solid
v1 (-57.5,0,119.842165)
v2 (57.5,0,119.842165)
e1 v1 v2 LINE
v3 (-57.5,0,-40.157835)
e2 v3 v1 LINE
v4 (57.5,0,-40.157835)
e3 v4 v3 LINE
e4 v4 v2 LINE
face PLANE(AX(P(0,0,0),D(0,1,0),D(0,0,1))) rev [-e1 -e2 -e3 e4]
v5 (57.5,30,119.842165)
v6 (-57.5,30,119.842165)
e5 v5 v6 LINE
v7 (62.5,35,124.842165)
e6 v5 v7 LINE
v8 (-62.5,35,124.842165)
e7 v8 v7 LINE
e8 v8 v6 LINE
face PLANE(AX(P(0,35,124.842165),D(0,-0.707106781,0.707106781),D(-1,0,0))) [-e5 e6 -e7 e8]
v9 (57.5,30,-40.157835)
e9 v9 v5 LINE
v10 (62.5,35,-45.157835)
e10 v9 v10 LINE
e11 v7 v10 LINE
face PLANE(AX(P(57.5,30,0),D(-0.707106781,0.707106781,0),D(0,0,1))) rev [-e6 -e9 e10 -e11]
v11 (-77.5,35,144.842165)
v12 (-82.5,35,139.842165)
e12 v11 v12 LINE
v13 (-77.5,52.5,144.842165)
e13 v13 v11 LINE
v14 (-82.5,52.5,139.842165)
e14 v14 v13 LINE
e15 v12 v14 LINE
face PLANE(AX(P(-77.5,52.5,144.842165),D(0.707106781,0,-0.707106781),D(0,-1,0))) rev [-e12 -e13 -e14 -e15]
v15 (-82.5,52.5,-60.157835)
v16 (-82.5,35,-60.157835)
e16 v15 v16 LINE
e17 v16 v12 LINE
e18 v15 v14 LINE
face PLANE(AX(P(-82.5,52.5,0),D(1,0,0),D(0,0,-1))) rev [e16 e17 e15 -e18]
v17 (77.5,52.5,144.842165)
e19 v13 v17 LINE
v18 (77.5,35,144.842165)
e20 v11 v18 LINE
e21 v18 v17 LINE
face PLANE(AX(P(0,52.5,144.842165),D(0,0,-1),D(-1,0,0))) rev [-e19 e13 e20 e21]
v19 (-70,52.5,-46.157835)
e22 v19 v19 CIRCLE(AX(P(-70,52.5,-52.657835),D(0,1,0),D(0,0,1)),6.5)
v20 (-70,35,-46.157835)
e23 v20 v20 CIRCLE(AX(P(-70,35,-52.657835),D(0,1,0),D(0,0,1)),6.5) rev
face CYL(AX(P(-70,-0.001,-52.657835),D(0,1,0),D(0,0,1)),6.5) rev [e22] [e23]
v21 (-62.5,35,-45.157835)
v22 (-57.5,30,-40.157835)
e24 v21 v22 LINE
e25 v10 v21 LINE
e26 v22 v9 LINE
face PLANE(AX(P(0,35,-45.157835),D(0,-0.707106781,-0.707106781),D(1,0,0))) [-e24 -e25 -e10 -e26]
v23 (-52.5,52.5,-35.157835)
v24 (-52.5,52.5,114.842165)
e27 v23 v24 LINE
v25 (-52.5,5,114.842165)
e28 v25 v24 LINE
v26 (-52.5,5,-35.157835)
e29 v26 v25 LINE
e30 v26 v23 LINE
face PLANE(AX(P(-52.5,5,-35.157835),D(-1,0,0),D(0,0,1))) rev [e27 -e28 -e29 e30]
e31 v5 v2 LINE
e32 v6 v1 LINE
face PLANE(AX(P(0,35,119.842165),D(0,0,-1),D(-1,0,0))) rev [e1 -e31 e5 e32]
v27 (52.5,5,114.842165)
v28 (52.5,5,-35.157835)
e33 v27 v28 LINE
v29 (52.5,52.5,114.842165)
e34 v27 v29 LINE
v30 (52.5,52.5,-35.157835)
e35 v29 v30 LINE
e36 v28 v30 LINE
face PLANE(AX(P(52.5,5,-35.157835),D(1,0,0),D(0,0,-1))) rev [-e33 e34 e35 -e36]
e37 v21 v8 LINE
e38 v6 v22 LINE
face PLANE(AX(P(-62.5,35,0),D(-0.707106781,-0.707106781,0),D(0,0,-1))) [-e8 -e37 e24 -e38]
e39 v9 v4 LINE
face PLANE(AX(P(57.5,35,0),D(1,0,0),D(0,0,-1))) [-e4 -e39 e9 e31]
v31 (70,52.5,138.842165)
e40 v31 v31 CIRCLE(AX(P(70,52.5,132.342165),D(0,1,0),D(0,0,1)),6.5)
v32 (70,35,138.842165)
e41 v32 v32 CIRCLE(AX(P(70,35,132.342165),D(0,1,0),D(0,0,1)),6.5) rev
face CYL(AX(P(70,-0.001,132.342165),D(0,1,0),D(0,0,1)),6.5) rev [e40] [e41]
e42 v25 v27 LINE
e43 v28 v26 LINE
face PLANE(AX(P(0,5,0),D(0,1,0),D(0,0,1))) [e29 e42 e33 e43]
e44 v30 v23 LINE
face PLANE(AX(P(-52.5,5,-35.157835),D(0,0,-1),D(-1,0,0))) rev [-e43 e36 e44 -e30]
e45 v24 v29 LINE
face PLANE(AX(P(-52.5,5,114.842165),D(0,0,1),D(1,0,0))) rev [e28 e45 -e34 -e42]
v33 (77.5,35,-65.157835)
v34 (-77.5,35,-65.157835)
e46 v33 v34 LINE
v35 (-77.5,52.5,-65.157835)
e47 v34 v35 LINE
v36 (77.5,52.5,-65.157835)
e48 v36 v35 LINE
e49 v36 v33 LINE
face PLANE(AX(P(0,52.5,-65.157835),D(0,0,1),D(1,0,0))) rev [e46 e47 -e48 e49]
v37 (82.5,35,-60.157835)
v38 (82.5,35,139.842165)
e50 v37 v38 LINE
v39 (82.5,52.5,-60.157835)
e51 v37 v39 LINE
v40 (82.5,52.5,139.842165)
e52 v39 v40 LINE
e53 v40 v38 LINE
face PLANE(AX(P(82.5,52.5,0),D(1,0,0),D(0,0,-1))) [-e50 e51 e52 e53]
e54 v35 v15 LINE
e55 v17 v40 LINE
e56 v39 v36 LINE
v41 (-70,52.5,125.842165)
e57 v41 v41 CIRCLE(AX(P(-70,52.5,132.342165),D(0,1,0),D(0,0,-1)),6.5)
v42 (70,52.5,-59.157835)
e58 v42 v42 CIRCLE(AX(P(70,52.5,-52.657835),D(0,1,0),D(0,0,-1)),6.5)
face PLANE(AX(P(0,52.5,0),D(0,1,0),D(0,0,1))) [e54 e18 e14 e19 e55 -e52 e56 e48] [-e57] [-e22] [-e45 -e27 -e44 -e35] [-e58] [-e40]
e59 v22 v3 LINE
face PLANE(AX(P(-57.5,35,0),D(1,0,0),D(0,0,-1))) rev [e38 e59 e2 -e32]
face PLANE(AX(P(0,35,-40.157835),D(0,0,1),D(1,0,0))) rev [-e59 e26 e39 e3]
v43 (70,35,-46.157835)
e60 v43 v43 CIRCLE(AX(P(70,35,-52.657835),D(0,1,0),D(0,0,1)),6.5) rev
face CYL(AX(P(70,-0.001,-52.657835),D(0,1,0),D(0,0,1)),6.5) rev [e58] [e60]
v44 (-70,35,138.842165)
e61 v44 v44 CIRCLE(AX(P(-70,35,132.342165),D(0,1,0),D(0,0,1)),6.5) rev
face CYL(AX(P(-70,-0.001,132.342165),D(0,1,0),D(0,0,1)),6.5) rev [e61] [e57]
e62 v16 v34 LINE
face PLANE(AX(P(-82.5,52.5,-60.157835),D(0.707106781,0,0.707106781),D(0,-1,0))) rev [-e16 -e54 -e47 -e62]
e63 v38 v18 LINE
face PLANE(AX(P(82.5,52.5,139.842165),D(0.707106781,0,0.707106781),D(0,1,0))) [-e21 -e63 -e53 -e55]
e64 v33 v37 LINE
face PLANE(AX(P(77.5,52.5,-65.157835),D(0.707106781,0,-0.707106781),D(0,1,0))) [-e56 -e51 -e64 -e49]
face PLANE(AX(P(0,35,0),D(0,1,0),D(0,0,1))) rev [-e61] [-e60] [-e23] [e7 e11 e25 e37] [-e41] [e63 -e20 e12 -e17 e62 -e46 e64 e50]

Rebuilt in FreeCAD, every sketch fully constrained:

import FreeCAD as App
import Part
import Sketcher

V = App.Vector
Q = App.Units.Quantity


def edges_at(feature, points):
    """Names of the edges that pass closest to the given points."""
    edges = feature.Shape.Edges
    near = lambda p: min(range(len(edges)), key=lambda i: edges[i].distToShape(Part.Vertex(*p))[0])
    return sorted({f"Edge{near(p) + 1}" for p in points})


def add_polygon(sketch, points):
    """Adds a closed chain of lines whose ends are joined by coincident constraints."""
    first, n = sketch.GeometryCount, len(points)
    for a, b in zip(points, points[1:] + points[:1]):
        sketch.addGeometry(Part.LineSegment(App.Vector(*a, 0), App.Vector(*b, 0)), False)
    for i in range(n):
        sketch.addConstraint(Sketcher.Constraint("Coincident", first + i, 2, first + (i + 1) % n, 1))

doc = App.newDocument("Part")
body = doc.addObject("PartDesign::Body", "Body")

sketch1 = doc.addObject("Sketcher::SketchObject", "Sketch")
body.addObject(sketch1)
sketch1.AttachmentSupport = (doc.XZ_Plane, [""])
sketch1.MapMode = "FlatFace"
add_polygon(sketch1, [(-58, 120), (58, 120), (58, -40), (-58, -40)])
sketch1.addConstraint(Sketcher.Constraint("Horizontal", 0))
sketch1.addConstraint(Sketcher.Constraint("Vertical", 1))
sketch1.addConstraint(Sketcher.Constraint("Horizontal", 2))
sketch1.addConstraint(Sketcher.Constraint("Vertical", 3))
sketch1.addConstraint(Sketcher.Constraint("DistanceX", 0, 1, 0, 2, Q("115 mm")))
sketch1.addConstraint(Sketcher.Constraint("DistanceY", 1, 2, 1, 1, Q("160 mm")))
sketch1.addConstraint(Sketcher.Constraint("DistanceX", -1, 1, 0, 2, Q("57.5 mm")))
sketch1.addConstraint(Sketcher.Constraint("DistanceY", -1, 1, 0, 2, Q("119.842165 mm")))
pad1 = doc.addObject("PartDesign::Pad", "Pad")
body.addObject(pad1)
pad1.Profile = sketch1
pad1.Length = 35
pad1.Reversed = True

sketch2 = doc.addObject("Sketcher::SketchObject", "Sketch001")
body.addObject(sketch2)
sketch2.AttachmentSupport = (doc.XZ_Plane, [""])
sketch2.MapMode = "FlatFace"
sketch2.AttachmentOffset = App.Placement(V(0, 0, -35), App.Rotation())
add_polygon(sketch2, [(82, -65), (-82, -65), (-82, 145), (82, 145)])
sketch2.addConstraint(Sketcher.Constraint("Horizontal", 0))
sketch2.addConstraint(Sketcher.Constraint("Vertical", 1))
sketch2.addConstraint(Sketcher.Constraint("Horizontal", 2))
sketch2.addConstraint(Sketcher.Constraint("Vertical", 3))
sketch2.addConstraint(Sketcher.Constraint("DistanceX", 0, 2, 0, 1, Q("165 mm")))
sketch2.addConstraint(Sketcher.Constraint("DistanceY", 1, 1, 1, 2, Q("210 mm")))
sketch2.addConstraint(Sketcher.Constraint("DistanceX", 0, 2, -1, 1, Q("82.5 mm")))
sketch2.addConstraint(Sketcher.Constraint("DistanceY", 0, 2, -1, 1, Q("65.157835 mm")))
pad2 = doc.addObject("PartDesign::Pad", "Pad001")
body.addObject(pad2)
pad2.Profile = sketch2
pad2.Length = 17.5
pad2.Reversed = True

sketch3 = doc.addObject("Sketcher::SketchObject", "Sketch002")
body.addObject(sketch3)
sketch3.AttachmentSupport = (doc.XZ_Plane, [""])
sketch3.MapMode = "FlatFace"
sketch3.AttachmentOffset = App.Placement(V(0, 0, -52.5), App.Rotation())
add_polygon(sketch3, [(-52, -35), (-52, 115), (52, 115), (52, -35)])
sketch3.addConstraint(Sketcher.Constraint("Vertical", 0))
sketch3.addConstraint(Sketcher.Constraint("Horizontal", 1))
sketch3.addConstraint(Sketcher.Constraint("Vertical", 2))
sketch3.addConstraint(Sketcher.Constraint("Horizontal", 3))
sketch3.addConstraint(Sketcher.Constraint("DistanceX", 1, 1, 1, 2, Q("105 mm")))
sketch3.addConstraint(Sketcher.Constraint("DistanceY", 0, 1, 0, 2, Q("150 mm")))
sketch3.addConstraint(Sketcher.Constraint("DistanceX", 0, 2, -1, 1, Q("52.5 mm")))
sketch3.addConstraint(Sketcher.Constraint("DistanceY", -1, 1, 0, 2, Q("114.842165 mm")))
pocket1 = doc.addObject("PartDesign::Pocket", "Pocket")
body.addObject(pocket1)
pocket1.Profile = sketch3
pocket1.Length = 47.5
pocket1.Reversed = True

sketch4 = doc.addObject("Sketcher::SketchObject", "Sketch003")
body.addObject(sketch4)
sketch4.AttachmentSupport = (doc.XZ_Plane, [""])
sketch4.MapMode = "FlatFace"
sketch4.AttachmentOffset = App.Placement(V(0, 0, -52.5), App.Rotation())
sketch4.addGeometry(Part.Circle(V(-70, -53, 0), V(0, 0, 1), 6), False)
sketch4.addConstraint(Sketcher.Constraint("Diameter", 0, Q("13 mm")))
sketch4.addConstraint(Sketcher.Constraint("DistanceX", 0, 3, -1, 1, Q("70 mm")))
sketch4.addConstraint(Sketcher.Constraint("DistanceY", 0, 3, -1, 1, Q("52.657835 mm")))
pocket2 = doc.addObject("PartDesign::Pocket", "Pocket001")
body.addObject(pocket2)
pocket2.Profile = sketch4
pocket2.Type = "UpToFirst"
pocket2.Reversed = True

sketch5 = doc.addObject("Sketcher::SketchObject", "Sketch004")
body.addObject(sketch5)
sketch5.AttachmentSupport = (doc.XZ_Plane, [""])
sketch5.MapMode = "FlatFace"
sketch5.AttachmentOffset = App.Placement(V(0, 0, -52.5), App.Rotation())
sketch5.addGeometry(Part.Circle(V(-70, 132, 0), V(0, 0, 1), 6), False)
sketch5.addConstraint(Sketcher.Constraint("Diameter", 0, Q("13 mm")))
sketch5.addConstraint(Sketcher.Constraint("DistanceX", 0, 3, -1, 1, Q("70 mm")))
sketch5.addConstraint(Sketcher.Constraint("DistanceY", -1, 1, 0, 3, Q("132.342165 mm")))
pocket3 = doc.addObject("PartDesign::Pocket", "Pocket002")
body.addObject(pocket3)
pocket3.Profile = sketch5
pocket3.Type = "UpToFirst"
pocket3.Reversed = True

sketch6 = doc.addObject("Sketcher::SketchObject", "Sketch005")
body.addObject(sketch6)
sketch6.AttachmentSupport = (doc.XZ_Plane, [""])
sketch6.MapMode = "FlatFace"
sketch6.AttachmentOffset = App.Placement(V(0, 0, -52.5), App.Rotation())
sketch6.addGeometry(Part.Circle(V(70, 132, 0), V(0, 0, 1), 6), False)
sketch6.addConstraint(Sketcher.Constraint("Diameter", 0, Q("13 mm")))
sketch6.addConstraint(Sketcher.Constraint("DistanceX", -1, 1, 0, 3, Q("70 mm")))
sketch6.addConstraint(Sketcher.Constraint("DistanceY", -1, 1, 0, 3, Q("132.342165 mm")))
pocket4 = doc.addObject("PartDesign::Pocket", "Pocket003")
body.addObject(pocket4)
pocket4.Profile = sketch6
pocket4.Type = "UpToFirst"
pocket4.Reversed = True

sketch7 = doc.addObject("Sketcher::SketchObject", "Sketch006")
body.addObject(sketch7)
sketch7.AttachmentSupport = (doc.XZ_Plane, [""])
sketch7.MapMode = "FlatFace"
sketch7.AttachmentOffset = App.Placement(V(0, 0, -52.5), App.Rotation())
sketch7.addGeometry(Part.Circle(V(70, -53, 0), V(0, 0, 1), 6), False)
sketch7.addConstraint(Sketcher.Constraint("Diameter", 0, Q("13 mm")))
sketch7.addConstraint(Sketcher.Constraint("DistanceX", -1, 1, 0, 3, Q("70 mm")))
sketch7.addConstraint(Sketcher.Constraint("DistanceY", 0, 3, -1, 1, Q("52.657835 mm")))
pocket5 = doc.addObject("PartDesign::Pocket", "Pocket004")
body.addObject(pocket5)
pocket5.Profile = sketch7
pocket5.Type = "UpToFirst"
pocket5.Reversed = True
doc.recompute()

chamfer = doc.addObject("PartDesign::Chamfer", "Chamfer")
body.addObject(chamfer)
chamfer.Base = (pocket5, edges_at(pocket5, [
    (0, 35, -40.158),
    (-57.5, 35, 39.842),
    (0, 35, 119.842),
    (57.5, 35, 39.842),
]))
chamfer.Size = 5
doc.recompute()

chamfer2 = doc.addObject("PartDesign::Chamfer", "Chamfer001")
body.addObject(chamfer2)
chamfer2.Base = (chamfer, edges_at(chamfer, [
    (82.5, 43.75, 144.842),
    (82.5, 43.75, -65.158),
    (-82.5, 43.75, -65.158),
    (-82.5, 43.75, 144.842),
]))
chamfer2.Size = 5

doc.recompute()
